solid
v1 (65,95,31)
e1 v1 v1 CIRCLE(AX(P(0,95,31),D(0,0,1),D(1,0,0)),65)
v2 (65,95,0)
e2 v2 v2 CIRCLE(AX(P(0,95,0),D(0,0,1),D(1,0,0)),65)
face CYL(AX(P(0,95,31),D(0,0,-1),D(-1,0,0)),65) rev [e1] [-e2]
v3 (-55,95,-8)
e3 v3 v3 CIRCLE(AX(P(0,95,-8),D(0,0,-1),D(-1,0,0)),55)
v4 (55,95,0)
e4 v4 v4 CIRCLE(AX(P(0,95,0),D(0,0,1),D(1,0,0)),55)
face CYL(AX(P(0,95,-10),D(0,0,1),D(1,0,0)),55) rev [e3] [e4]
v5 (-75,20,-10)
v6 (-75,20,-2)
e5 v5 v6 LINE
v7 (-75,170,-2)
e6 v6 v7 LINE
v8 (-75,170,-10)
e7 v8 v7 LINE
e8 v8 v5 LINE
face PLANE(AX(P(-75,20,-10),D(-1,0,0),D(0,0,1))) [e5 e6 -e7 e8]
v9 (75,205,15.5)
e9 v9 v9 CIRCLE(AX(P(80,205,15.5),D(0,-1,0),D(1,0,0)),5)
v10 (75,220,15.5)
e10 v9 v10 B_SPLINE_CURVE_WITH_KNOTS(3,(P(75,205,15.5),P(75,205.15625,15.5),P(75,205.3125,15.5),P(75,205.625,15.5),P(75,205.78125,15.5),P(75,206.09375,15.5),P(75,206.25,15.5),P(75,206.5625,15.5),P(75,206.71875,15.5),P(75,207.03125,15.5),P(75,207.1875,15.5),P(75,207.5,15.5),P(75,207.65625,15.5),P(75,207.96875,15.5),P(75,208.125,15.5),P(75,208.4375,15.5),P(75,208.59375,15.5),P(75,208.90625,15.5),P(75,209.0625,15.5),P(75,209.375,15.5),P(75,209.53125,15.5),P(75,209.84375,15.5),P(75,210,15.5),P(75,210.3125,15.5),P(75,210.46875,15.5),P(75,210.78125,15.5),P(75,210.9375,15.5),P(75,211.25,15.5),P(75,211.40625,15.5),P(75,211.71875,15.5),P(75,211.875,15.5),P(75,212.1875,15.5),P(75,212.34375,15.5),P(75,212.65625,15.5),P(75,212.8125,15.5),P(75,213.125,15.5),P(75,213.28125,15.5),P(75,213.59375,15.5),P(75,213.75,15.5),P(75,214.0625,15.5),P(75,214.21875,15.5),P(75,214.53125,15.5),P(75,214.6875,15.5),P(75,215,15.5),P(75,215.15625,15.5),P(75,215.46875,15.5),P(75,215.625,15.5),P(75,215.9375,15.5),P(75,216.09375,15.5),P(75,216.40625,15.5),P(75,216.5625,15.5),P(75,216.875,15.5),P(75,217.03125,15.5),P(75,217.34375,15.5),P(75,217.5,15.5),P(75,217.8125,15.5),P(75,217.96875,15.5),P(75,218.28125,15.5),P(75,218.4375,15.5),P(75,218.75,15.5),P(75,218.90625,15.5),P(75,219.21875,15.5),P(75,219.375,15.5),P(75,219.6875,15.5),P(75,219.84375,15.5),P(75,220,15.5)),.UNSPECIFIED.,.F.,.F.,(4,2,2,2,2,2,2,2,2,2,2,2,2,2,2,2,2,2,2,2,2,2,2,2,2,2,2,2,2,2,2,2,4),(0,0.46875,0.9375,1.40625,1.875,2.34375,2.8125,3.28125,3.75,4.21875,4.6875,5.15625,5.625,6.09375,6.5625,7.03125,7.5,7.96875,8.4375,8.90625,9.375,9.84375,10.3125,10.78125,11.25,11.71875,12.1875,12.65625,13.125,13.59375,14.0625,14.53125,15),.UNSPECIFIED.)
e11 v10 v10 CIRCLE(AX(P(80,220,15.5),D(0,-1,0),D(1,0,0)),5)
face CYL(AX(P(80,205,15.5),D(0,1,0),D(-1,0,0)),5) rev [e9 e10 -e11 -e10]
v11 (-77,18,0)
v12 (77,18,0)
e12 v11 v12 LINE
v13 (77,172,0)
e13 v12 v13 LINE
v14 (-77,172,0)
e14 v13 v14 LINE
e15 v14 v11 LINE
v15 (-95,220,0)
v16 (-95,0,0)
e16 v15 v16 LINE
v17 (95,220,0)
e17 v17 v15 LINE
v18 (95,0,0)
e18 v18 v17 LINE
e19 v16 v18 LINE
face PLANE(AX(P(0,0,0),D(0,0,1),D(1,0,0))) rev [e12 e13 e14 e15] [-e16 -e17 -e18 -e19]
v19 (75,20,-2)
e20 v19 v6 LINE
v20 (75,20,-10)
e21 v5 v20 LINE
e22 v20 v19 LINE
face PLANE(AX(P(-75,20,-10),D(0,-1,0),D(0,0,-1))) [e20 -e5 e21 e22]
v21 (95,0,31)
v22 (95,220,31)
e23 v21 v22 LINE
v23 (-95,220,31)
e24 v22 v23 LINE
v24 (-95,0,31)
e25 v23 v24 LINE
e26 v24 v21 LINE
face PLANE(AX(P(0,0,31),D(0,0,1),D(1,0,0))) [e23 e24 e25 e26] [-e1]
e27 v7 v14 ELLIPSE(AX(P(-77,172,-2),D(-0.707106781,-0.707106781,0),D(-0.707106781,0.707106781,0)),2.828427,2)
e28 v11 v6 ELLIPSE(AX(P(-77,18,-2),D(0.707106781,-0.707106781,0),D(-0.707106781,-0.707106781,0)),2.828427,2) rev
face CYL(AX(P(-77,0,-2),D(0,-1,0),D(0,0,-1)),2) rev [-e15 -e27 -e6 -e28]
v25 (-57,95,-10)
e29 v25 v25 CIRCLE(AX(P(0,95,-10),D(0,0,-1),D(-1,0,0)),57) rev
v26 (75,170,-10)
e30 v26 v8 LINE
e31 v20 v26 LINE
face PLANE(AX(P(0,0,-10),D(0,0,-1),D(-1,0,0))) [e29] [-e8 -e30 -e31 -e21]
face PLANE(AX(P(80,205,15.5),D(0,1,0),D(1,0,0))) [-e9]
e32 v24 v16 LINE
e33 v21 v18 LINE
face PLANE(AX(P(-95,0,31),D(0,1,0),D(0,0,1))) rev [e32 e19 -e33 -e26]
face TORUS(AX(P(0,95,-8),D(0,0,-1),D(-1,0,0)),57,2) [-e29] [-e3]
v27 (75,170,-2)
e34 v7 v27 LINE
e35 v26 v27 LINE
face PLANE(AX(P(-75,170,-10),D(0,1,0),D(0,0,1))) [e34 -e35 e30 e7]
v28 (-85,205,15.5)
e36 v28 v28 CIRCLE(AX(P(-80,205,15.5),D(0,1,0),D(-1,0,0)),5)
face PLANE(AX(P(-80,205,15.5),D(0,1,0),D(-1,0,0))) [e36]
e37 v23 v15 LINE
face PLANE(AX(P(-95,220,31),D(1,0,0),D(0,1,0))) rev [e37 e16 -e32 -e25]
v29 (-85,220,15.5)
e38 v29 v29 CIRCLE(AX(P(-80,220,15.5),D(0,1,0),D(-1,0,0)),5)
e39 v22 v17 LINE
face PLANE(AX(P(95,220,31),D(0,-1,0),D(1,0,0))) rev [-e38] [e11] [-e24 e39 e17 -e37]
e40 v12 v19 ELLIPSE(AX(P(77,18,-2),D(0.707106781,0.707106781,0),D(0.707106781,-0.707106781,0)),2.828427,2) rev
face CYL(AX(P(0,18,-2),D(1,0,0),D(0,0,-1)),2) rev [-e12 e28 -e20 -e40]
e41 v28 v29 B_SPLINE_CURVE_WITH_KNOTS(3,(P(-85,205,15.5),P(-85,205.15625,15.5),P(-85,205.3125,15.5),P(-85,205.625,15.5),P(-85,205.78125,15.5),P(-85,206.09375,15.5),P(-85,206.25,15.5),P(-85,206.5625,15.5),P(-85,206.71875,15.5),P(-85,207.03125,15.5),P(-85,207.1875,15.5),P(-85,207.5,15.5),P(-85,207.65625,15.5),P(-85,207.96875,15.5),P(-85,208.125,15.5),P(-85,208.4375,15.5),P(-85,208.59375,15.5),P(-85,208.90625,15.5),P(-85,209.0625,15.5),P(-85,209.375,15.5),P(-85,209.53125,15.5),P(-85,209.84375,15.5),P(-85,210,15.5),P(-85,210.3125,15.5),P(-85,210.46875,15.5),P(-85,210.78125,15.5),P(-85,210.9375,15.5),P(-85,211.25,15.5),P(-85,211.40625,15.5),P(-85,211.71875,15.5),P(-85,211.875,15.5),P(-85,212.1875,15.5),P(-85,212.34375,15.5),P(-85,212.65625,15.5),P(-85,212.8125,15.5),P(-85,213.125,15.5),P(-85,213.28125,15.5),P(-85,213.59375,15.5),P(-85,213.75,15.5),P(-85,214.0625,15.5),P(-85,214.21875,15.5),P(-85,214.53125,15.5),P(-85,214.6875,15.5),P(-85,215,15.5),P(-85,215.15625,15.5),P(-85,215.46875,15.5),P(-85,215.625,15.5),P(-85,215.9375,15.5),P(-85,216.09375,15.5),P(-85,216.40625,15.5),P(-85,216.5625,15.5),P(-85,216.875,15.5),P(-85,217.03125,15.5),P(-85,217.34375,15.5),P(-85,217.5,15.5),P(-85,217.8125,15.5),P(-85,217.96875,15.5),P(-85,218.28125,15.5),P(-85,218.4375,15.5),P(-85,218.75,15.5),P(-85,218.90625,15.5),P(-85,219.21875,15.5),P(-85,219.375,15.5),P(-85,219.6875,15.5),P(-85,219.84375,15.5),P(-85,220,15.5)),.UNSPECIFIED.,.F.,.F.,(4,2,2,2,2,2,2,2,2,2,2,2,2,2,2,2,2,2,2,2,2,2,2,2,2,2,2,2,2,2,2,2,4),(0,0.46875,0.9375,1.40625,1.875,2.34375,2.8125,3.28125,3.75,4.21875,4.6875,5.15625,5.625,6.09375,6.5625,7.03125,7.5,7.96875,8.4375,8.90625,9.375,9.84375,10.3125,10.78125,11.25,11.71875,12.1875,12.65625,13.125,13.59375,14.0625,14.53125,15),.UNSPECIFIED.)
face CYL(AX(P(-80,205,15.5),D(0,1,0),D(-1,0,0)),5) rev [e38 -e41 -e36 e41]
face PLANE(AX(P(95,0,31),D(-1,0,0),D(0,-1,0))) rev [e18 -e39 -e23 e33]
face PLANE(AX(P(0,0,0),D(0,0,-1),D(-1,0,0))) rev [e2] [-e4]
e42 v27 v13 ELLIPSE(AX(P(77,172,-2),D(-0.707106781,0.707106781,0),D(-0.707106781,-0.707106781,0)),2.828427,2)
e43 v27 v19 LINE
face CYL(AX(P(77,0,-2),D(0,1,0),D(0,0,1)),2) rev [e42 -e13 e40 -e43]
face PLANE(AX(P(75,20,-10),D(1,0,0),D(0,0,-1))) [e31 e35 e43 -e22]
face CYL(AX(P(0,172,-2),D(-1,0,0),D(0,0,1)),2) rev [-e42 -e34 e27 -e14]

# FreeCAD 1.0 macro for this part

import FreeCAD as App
import Part
import Sketcher
from FreeCAD import Vector
Q = App.Units.Quantity


def edges_at(feature, points):
    """Names of the edges that pass closest to the given points."""
    edges = feature.Shape.Edges
    near = lambda p: min(range(len(edges)), key=lambda i: edges[i].distToShape(Part.Vertex(*p))[0])
    return sorted({f"Edge{near(p) + 1}" for p in points})

doc = App.newDocument("Part")
body = doc.addObject("PartDesign::Body", "Body")

# Sketch on XY plane
sketch1 = body.newObject("Sketcher::SketchObject", "Sketch")
sketch1.AttachmentSupport = (doc.getObject("XY_Plane"), [""])
sketch1.MapMode = "FlatFace"
sketch1.addGeometry([
    Part.LineSegment(Vector(-95, 220, 0), Vector(-95, 0, 0)),  # 0
    Part.LineSegment(Vector(-95, 0, 0), Vector(95, 0, 0)),  # 1
    Part.LineSegment(Vector(95, 0, 0), Vector(95, 220, 0)),  # 2
    Part.LineSegment(Vector(95, 220, 0), Vector(-95, 220, 0)),  # 3
    Part.Circle(Vector(0, 95, 0), Vector(0, 0, 1), 65),  # 4
], False)
sketch1.addConstraint([
    Sketcher.Constraint("Coincident", 0, 2, 1, 1),
    Sketcher.Constraint("Coincident", 1, 2, 2, 1),
    Sketcher.Constraint("Coincident", 2, 2, 3, 1),
    Sketcher.Constraint("Coincident", 3, 2, 0, 1),
    Sketcher.Constraint("Vertical", 0),
    Sketcher.Constraint("Horizontal", 1),
    Sketcher.Constraint("Vertical", 2),
    Sketcher.Constraint("Horizontal", 3),
    Sketcher.Constraint("Symmetric", 0, 2, 1, 2, -1, 1),
    Sketcher.Constraint("PointOnObject", 4, 3, -2),
    Sketcher.Constraint("Diameter", 4, Q("130 mm")),
    Sketcher.Constraint("DistanceX", 1, 1, 1, 2, Q("190 mm")),
    Sketcher.Constraint("DistanceY", 0, 2, 0, 1, Q("220 mm")),
    Sketcher.Constraint("DistanceY", -1, 1, 4, 3, Q("95 mm")),
])
pad1 = body.newObject("PartDesign::Pad", "Pad")
pad1.Profile = sketch1
pad1.Length = 31

# Sketch on XZ plane
sketch2 = body.newObject("Sketcher::SketchObject", "Sketch001")
sketch2.AttachmentSupport = (doc.getObject("XZ_Plane"), [""])
sketch2.MapMode = "FlatFace"
sketch2.AttachmentOffset = App.Placement(Vector(0, 0, -220), App.Rotation())
sketch2.addGeometry(Part.Circle(Vector(-80, 16, 0), Vector(0, 0, 1), 5), False)
sketch2.addConstraint([
    Sketcher.Constraint("Diameter", 0, Q("10 mm")),
    Sketcher.Constraint("DistanceX", 0, 3, -1, 1, Q("80 mm")),
    Sketcher.Constraint("DistanceY", -1, 1, 0, 3, Q("15.5 mm")),
])
pocket1 = body.newObject("PartDesign::Pocket", "Pocket")
pocket1.Profile = sketch2
pocket1.Length = 15
pocket1.Reversed = True
doc.recompute()

mirrored = body.newObject("PartDesign::Mirrored", "Mirrored")
mirrored.Originals = [pocket1]
mirrored.MirrorPlane = (doc.getObject("YZ_Plane"), [""])
body.Tip = mirrored

# Sketch on XY plane
sketch3 = body.newObject("Sketcher::SketchObject", "Sketch002")
sketch3.AttachmentSupport = (doc.getObject("XY_Plane"), [""])
sketch3.MapMode = "FlatFace"
sketch3.addGeometry([
    Part.LineSegment(Vector(-75, 170, 0), Vector(-75, 20, 0)),  # 0
    Part.LineSegment(Vector(-75, 20, 0), Vector(75, 20, 0)),  # 1
    Part.LineSegment(Vector(75, 20, 0), Vector(75, 170, 0)),  # 2
    Part.LineSegment(Vector(75, 170, 0), Vector(-75, 170, 0)),  # 3
    Part.Circle(Vector(0, 95, 0), Vector(0, 0, 1), 55),  # 4
], False)
sketch3.addConstraint([
    Sketcher.Constraint("Coincident", 0, 2, 1, 1),
    Sketcher.Constraint("Coincident", 1, 2, 2, 1),
    Sketcher.Constraint("Coincident", 2, 2, 3, 1),
    Sketcher.Constraint("Coincident", 3, 2, 0, 1),
    Sketcher.Constraint("Vertical", 0),
    Sketcher.Constraint("Horizontal", 1),
    Sketcher.Constraint("Vertical", 2),
    Sketcher.Constraint("Horizontal", 3),
    Sketcher.Constraint("PointOnObject", 4, 3, -2),
    Sketcher.Constraint("Equal", 3, 0),
    Sketcher.Constraint("Diameter", 4, Q("110 mm")),
    Sketcher.Constraint("DistanceX", 1, 1, 1, 2, Q("150 mm")),
    Sketcher.Constraint("DistanceY", -1, 1, 4, 3, Q("95 mm")),
    Sketcher.Constraint("DistanceX", 0, 2, -1, 1, Q("75 mm")),
    Sketcher.Constraint("DistanceY", -1, 1, 0, 2, Q("20 mm")),
])
pad2 = body.newObject("PartDesign::Pad", "Pad001")
pad2.Profile = sketch3
pad2.Length = 10
pad2.Reversed = True
doc.recompute()

fillet = body.newObject("PartDesign::Fillet", "Fillet")
fillet.Base = (pad2, edges_at(pad2, [
    (-55, 95, -10),
    (75, 95, 0),
    (0, 170, 0),
    (-75, 95, 0),
    (0, 20, 0),
]))
fillet.Radius = 2

doc.recompute()
